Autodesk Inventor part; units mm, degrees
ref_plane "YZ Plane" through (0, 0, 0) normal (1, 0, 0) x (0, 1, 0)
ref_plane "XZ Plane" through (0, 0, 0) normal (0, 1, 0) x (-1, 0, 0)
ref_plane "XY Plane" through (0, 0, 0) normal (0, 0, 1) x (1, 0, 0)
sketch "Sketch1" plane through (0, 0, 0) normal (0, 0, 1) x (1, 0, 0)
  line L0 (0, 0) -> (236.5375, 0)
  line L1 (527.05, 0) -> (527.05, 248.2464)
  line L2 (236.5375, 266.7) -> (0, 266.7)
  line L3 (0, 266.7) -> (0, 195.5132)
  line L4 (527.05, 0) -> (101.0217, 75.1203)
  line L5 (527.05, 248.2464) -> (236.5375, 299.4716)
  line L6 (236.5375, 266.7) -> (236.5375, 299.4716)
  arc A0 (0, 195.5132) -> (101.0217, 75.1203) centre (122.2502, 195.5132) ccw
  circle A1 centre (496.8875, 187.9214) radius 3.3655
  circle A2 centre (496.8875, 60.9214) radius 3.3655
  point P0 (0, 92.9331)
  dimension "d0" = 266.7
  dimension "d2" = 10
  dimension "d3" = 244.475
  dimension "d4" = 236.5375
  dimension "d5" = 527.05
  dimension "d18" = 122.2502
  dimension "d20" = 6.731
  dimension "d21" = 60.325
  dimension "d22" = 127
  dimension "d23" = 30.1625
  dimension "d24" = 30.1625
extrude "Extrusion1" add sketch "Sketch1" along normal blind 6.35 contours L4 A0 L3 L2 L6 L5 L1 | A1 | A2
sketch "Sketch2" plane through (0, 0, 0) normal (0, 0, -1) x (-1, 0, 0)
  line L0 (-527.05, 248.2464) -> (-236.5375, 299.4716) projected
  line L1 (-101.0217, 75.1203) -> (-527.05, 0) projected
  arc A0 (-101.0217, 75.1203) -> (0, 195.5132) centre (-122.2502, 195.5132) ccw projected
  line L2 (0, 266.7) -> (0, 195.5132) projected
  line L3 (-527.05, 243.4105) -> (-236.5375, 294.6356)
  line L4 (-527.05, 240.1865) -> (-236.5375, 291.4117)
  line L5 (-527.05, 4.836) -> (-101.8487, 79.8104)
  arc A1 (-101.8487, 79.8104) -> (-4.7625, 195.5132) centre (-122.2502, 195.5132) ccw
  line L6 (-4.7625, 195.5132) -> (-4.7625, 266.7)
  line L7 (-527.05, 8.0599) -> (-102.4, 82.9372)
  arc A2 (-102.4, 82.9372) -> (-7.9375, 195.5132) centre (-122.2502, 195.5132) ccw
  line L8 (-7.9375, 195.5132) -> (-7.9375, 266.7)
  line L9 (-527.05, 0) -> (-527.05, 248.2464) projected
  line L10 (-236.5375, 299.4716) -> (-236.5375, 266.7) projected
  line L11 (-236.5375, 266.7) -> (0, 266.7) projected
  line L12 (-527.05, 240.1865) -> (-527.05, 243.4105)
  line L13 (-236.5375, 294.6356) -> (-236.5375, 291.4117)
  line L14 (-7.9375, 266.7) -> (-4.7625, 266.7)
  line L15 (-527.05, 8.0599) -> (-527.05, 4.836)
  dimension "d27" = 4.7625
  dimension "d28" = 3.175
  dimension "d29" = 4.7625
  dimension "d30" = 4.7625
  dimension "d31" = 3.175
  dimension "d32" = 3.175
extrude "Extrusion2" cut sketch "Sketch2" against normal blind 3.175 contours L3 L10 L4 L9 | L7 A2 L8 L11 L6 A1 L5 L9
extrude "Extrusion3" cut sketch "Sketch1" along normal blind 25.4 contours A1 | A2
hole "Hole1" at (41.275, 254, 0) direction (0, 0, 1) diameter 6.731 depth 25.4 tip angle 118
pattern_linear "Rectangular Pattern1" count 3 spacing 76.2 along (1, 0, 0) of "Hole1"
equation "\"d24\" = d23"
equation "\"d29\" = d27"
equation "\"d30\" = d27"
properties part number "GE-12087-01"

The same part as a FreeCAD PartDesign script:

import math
import FreeCAD as App
import Part
import Sketcher

V = App.Vector
Q = App.Units.Quantity


def add_polygon(sketch, points):
    """Adds a closed chain of lines whose ends are joined by coincident constraints."""
    first, n = sketch.GeometryCount, len(points)
    for a, b in zip(points, points[1:] + points[:1]):
        sketch.addGeometry(Part.LineSegment(App.Vector(*a, 0), App.Vector(*b, 0)), False)
    for i in range(n):
        sketch.addConstraint(Sketcher.Constraint("Coincident", first + i, 2, first + (i + 1) % n, 1))

doc = App.newDocument("Part")
body = doc.addObject("PartDesign::Body", "Body")

# Sketch on XY plane
sketch1 = body.newObject("Sketcher::SketchObject", "Sketch")
sketch1.AttachmentSupport = (doc.getObject("XY_Plane"), [""])
sketch1.MapMode = "FlatFace"
sketch1.addGeometry([
    Part.LineSegment(V(101.0217, 75.1203, 0), V(527.05, 0, 0)),  # 0
    Part.LineSegment(V(527.05, 0, 0), V(527.05, 248.2464, 0)),  # 1
    Part.LineSegment(V(527.05, 248.2464, 0), V(236.5375, 299.4716, 0)),  # 2
    Part.LineSegment(V(236.5375, 299.4716, 0), V(236.5375, 266.7, 0)),  # 3
    Part.LineSegment(V(236.5375, 266.7, 0), V(0, 266.7, 0)),  # 4
    Part.LineSegment(V(0, 266.7, 0), V(0, 195.5132, 0)),  # 5
    Part.ArcOfCircle(Part.Circle(V(122.2502, 195.5132, 0), V(0, 0, 1), 122.2502), math.radians(180), math.radians(260.000008)),  # 6
], False)
sketch1.addConstraint([
    Sketcher.Constraint("Coincident", 0, 2, 1, 1),
    Sketcher.Constraint("Coincident", 1, 2, 2, 1),
    Sketcher.Constraint("Coincident", 2, 2, 3, 1),
    Sketcher.Constraint("Coincident", 3, 2, 4, 1),
    Sketcher.Constraint("Coincident", 4, 2, 5, 1),
    Sketcher.Constraint("Tangent", 5, 2, 6, 1),
    Sketcher.Constraint("Tangent", 6, 2, 0, 1),
    Sketcher.Constraint("Vertical", 1),
    Sketcher.Constraint("Vertical", 3),
    Sketcher.Constraint("Horizontal", 4),
    Sketcher.Constraint("Vertical", 5),
    Sketcher.Constraint("PointOnObject", 0, 2, -1),
    Sketcher.Constraint("PointOnObject", 4, 2, -2),
    Sketcher.Constraint("Parallel", 0, 2),
    Sketcher.Constraint("Angle", 0, Q("-10 deg")),
    Sketcher.Constraint("Radius", 6, Q("4.813 in")),
    Sketcher.Constraint("DistanceY", -1, 1, 3, 2, Q("10.5 in")),
    Sketcher.Constraint("DistanceX", 4, 2, 4, 1, Q("9.3125 in")),
    Sketcher.Constraint("DistanceX", -1, 1, 0, 2, Q("20.75 in")),
    Sketcher.Constraint("DistanceY", 1, 1, 1, 2, Q("248.2464 mm")),
])
pad1 = body.newObject("PartDesign::Pad", "Pad")
pad1.Profile = sketch1
pad1.Length = Q("0.25 in")

# Sketch on XY plane
sketch2 = body.newObject("Sketcher::SketchObject", "Sketch001")
sketch2.AttachmentSupport = (doc.getObject("XY_Plane"), [""])
sketch2.MapMode = "FlatFace"
add_polygon(sketch2, [(236.5375, 294.6356), (527.05, 243.4105), (527.05, 240.1865), (236.5375, 291.4117)])  # lines 0-3
sketch2.addGeometry(Part.LineSegment(V(102.4, 82.9372, 0), V(527.05, 8.0599, 0)), False)  # 4
sketch2.addGeometry(Part.LineSegment(V(527.05, 8.0599, 0), V(527.05, 4.836, 0)), False)  # 5
sketch2.addGeometry(Part.LineSegment(V(527.05, 4.836, 0), V(101.8487, 79.8104, 0)), False)  # 6
sketch2.addGeometry(Part.ArcOfCircle(Part.Circle(V(122.2502, 195.5132, 0), V(0, 0, 1), 117.487698), math.radians(180), math.radians(260.000012)), False)  # 7
sketch2.addGeometry(Part.LineSegment(V(4.7625, 195.5132, 0), V(4.7625, 266.7, 0)), False)  # 8
sketch2.addGeometry(Part.LineSegment(V(4.7625, 266.7, 0), V(7.9375, 266.7, 0)), False)  # 9
sketch2.addGeometry(Part.LineSegment(V(7.9375, 266.7, 0), V(7.9375, 195.5132, 0)), False)  # 10
sketch2.addGeometry(Part.ArcOfCircle(Part.Circle(V(122.2502, 195.5132, 0), V(0, 0, 1), 114.312669), math.radians(180), math.radians(259.999993)), False)  # 11
sketch2.addConstraint([
    Sketcher.Constraint("Coincident", 4, 2, 5, 1),
    Sketcher.Constraint("Coincident", 5, 2, 6, 1),
    Sketcher.Constraint("Tangent", 6, 2, 7, 2),
    Sketcher.Constraint("Tangent", 7, 1, 8, 1),
    Sketcher.Constraint("Coincident", 8, 2, 9, 1),
    Sketcher.Constraint("Coincident", 9, 2, 10, 1),
    Sketcher.Constraint("Tangent", 10, 2, 11, 1),
    Sketcher.Constraint("Tangent", 11, 2, 4, 1),
    Sketcher.Constraint("Vertical", 1),
    Sketcher.Constraint("Vertical", 3),
    Sketcher.Constraint("Vertical", 5),
    Sketcher.Constraint("Vertical", 8),
    Sketcher.Constraint("Horizontal", 9),
    Sketcher.Constraint("Vertical", 10),
    Sketcher.Constraint("Coincident", 11, 3, 7, 3),
    Sketcher.Constraint("Parallel", 0, 2),
    Sketcher.Constraint("Parallel", 2, 4),
    Sketcher.Constraint("Parallel", 4, 6),
    Sketcher.Constraint("Vertical", 1, 2, 4, 2),
    Sketcher.Constraint("Equal", 3, 5),
    Sketcher.Constraint("DistanceX", 9, 1, 9, 2, Q("0.125 in")),
    Sketcher.Constraint("DistanceX", -1, 1, 7, 1, Q("0.1875 in")),
    Sketcher.Constraint("Angle", 0, Q("-10 deg")),
    Sketcher.Constraint("DistanceY", -1, 1, 8, 2, Q("10.5 in")),
    Sketcher.Constraint("Radius", 7, Q("4.6255 in")),
    Sketcher.Constraint("DistanceX", -1, 1, 0, 2, Q("20.75 in")),
    Sketcher.Constraint("DistanceX", -1, 1, 2, 2, Q("9.3125 in")),
    Sketcher.Constraint("DistanceY", 8, 1, 8, 2, Q("71.1868 mm")),
    Sketcher.Constraint("DistanceY", -1, 1, 0, 2, Q("9.5831 in")),
])
pocket1 = body.newObject("PartDesign::Pocket", "Pocket")
pocket1.Profile = sketch2
pocket1.Length = Q("0.125 in")
pocket1.Reversed = True

# Sketch on XY plane
sketch3 = body.newObject("Sketcher::SketchObject", "Sketch002")
sketch3.AttachmentSupport = (doc.getObject("XY_Plane"), [""])
sketch3.MapMode = "FlatFace"
sketch3.addGeometry([
    Part.Circle(V(496.8875, 187.9214, 0), V(0, 0, 1), 3.3655),
    Part.Circle(V(496.8875, 60.9214, 0), V(0, 0, 1), 3.3655),
], False)
sketch3.addConstraint([
    Sketcher.Constraint("Equal", 0, 1),
    Sketcher.Constraint("Vertical", 0, 3, 1, 3),
    Sketcher.Constraint("Diameter", 0, Q("0.265 in")),
    Sketcher.Constraint("DistanceY", 1, 3, 0, 3, Q("5 in")),
    Sketcher.Constraint("DistanceX", -1, 1, 0, 3, Q("19.5625 in")),
    Sketcher.Constraint("DistanceY", -1, 1, 0, 3, Q("187.9214 mm")),
])
pocket2 = body.newObject("PartDesign::Pocket", "Pocket001")
pocket2.Profile = sketch3
pocket2.Length = Q("1 in")
pocket2.Reversed = True

# Sketch on XY plane
sketch4 = body.newObject("Sketcher::SketchObject", "Sketch003")
sketch4.AttachmentSupport = (doc.getObject("XY_Plane"), [""])
sketch4.MapMode = "FlatFace"
sketch4.addGeometry(Part.Circle(V(41.275, 254, 0), V(0, 0, 1), 3.3655), False)
sketch4.addConstraint([
    Sketcher.Constraint("Diameter", 0, Q("0.265 in")),
    Sketcher.Constraint("DistanceY", -1, 1, 0, 3, Q("10 in")),
    Sketcher.Constraint("DistanceX", -1, 1, 0, 3, Q("1.625 in")),
])
doc.recompute()
hole = body.newObject("PartDesign::Hole", "Hole")
hole.Profile = sketch4
hole.ThreadType = "None"
hole.Diameter = Q("0.265 in")
hole.DepthType = "Dimension"
hole.Depth = Q("1 in")
hole.DrillPoint = "Angled"
hole.DrillPointAngle = 118
hole.Reversed = True
doc.recompute()

linearpattern = body.newObject("PartDesign::LinearPattern", "LinearPattern")
linearpattern.Originals = [hole]
linearpattern.Direction = (doc.getObject("X_Axis"), [""])
linearpattern.Mode = "offset"
linearpattern.Offset = Q("3 in")
linearpattern.Occurrences = 3
body.Tip = linearpattern

doc.recompute()
